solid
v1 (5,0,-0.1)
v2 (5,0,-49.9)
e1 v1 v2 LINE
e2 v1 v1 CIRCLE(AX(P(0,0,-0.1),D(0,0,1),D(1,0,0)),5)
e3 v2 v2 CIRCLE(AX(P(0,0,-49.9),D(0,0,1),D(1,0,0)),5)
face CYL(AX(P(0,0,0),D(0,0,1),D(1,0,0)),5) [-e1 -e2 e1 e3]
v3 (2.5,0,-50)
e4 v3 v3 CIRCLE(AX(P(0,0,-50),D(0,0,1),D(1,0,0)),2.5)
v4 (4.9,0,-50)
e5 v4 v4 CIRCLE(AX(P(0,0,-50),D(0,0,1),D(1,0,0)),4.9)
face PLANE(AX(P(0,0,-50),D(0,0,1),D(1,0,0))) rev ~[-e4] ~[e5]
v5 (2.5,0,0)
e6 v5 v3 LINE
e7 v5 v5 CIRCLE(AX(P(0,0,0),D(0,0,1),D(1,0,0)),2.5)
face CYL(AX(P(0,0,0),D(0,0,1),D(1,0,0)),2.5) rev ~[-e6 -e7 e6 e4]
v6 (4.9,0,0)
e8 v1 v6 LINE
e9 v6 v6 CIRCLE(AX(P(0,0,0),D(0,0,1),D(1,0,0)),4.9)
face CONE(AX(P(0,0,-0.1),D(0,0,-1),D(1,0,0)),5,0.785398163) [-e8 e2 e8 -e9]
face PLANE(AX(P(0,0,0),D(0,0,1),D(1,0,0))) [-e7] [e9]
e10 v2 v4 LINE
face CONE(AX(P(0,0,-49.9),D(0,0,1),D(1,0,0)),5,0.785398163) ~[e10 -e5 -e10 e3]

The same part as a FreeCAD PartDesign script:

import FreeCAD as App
import Part
import Sketcher

V = App.Vector
Q = App.Units.Quantity


def edges_at(feature, points):
    """Names of the edges that pass closest to the given points."""
    edges = feature.Shape.Edges
    near = lambda p: min(range(len(edges)), key=lambda i: edges[i].distToShape(Part.Vertex(*p))[0])
    return sorted({f"Edge{near(p) + 1}" for p in points})

doc = App.newDocument("Part")
body = doc.addObject("PartDesign::Body", "Body")

# Sketch on XY plane
sketch1 = doc.addObject("Sketcher::SketchObject", "Sketch")
body.addObject(sketch1)
sketch1.AttachmentSupport = (doc.XY_Plane, [""])
sketch1.MapMode = "FlatFace"
sketch1.addGeometry([
    Part.Circle(V(0, 0, 0), V(0, 0, 1), 5),
    Part.Circle(V(0, 0, 0), V(0, 0, 1), 2.5),
], False)
sketch1.addConstraint([
    Sketcher.Constraint("Coincident", 0, 3, -1, 1),
    Sketcher.Constraint("Coincident", 1, 3, -1, 1),
    Sketcher.Constraint("Diameter", 0, Q("10 mm")),
    Sketcher.Constraint("Diameter", 1, Q("5 mm")),
])
pad1 = doc.addObject("PartDesign::Pad", "Pad")
body.addObject(pad1)
pad1.Profile = sketch1
pad1.Length = 50
pad1.Reversed = True
doc.recompute()

chamfer = doc.addObject("PartDesign::Chamfer", "Chamfer")
body.addObject(chamfer)
chamfer.Base = (pad1, edges_at(pad1, [(-5, 0, 0), (-5, 0, -50)]))
chamfer.Size = 0.1

doc.recompute()
